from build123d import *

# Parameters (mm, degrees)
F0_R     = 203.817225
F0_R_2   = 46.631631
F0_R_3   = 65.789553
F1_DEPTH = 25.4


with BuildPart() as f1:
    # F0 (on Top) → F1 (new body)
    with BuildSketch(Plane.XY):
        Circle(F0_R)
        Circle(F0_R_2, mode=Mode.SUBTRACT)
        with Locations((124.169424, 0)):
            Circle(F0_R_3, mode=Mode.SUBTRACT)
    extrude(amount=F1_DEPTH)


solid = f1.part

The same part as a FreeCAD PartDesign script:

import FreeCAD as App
import Part
import Sketcher

V = App.Vector
Q = App.Units.Quantity

doc = App.newDocument("Part")
body = doc.addObject("PartDesign::Body", "Body")

# Sketch on XY plane
sketch1 = doc.addObject("Sketcher::SketchObject", "Sketch")
body.addObject(sketch1)
sketch1.AttachmentSupport = (doc.XY_Plane, [""])
sketch1.MapMode = "FlatFace"
sketch1.addGeometry(Part.Circle(V(0, 0, 0), V(0, 0, 1), 204), False)
sketch1.addGeometry(Part.Circle(V(0, 0, 0), V(0, 0, 1), 47), False)
sketch1.addGeometry(Part.Circle(V(124, 0, 0), V(0, 0, 1), 66), False)
sketch1.addConstraint(Sketcher.Constraint("Coincident", 0, 3, -1, 1))
sketch1.addConstraint(Sketcher.Constraint("Coincident", 1, 3, -1, 1))
sketch1.addConstraint(Sketcher.Constraint("PointOnObject", 2, 3, -1))
sketch1.addConstraint(Sketcher.Constraint("Diameter", 0, 407.63445))
sketch1.addConstraint(Sketcher.Constraint("Diameter", 1, 93.263262))
sketch1.addConstraint(Sketcher.Constraint("Diameter", 2, 131.579106))
sketch1.addConstraint(Sketcher.Constraint("DistanceX", -1, 1, 2, 3, 124.169424))
pad1 = doc.addObject("PartDesign::Pad", "Pad")
body.addObject(pad1)
pad1.Profile = sketch1
pad1.Length = Q("1 in")

doc.recompute()
